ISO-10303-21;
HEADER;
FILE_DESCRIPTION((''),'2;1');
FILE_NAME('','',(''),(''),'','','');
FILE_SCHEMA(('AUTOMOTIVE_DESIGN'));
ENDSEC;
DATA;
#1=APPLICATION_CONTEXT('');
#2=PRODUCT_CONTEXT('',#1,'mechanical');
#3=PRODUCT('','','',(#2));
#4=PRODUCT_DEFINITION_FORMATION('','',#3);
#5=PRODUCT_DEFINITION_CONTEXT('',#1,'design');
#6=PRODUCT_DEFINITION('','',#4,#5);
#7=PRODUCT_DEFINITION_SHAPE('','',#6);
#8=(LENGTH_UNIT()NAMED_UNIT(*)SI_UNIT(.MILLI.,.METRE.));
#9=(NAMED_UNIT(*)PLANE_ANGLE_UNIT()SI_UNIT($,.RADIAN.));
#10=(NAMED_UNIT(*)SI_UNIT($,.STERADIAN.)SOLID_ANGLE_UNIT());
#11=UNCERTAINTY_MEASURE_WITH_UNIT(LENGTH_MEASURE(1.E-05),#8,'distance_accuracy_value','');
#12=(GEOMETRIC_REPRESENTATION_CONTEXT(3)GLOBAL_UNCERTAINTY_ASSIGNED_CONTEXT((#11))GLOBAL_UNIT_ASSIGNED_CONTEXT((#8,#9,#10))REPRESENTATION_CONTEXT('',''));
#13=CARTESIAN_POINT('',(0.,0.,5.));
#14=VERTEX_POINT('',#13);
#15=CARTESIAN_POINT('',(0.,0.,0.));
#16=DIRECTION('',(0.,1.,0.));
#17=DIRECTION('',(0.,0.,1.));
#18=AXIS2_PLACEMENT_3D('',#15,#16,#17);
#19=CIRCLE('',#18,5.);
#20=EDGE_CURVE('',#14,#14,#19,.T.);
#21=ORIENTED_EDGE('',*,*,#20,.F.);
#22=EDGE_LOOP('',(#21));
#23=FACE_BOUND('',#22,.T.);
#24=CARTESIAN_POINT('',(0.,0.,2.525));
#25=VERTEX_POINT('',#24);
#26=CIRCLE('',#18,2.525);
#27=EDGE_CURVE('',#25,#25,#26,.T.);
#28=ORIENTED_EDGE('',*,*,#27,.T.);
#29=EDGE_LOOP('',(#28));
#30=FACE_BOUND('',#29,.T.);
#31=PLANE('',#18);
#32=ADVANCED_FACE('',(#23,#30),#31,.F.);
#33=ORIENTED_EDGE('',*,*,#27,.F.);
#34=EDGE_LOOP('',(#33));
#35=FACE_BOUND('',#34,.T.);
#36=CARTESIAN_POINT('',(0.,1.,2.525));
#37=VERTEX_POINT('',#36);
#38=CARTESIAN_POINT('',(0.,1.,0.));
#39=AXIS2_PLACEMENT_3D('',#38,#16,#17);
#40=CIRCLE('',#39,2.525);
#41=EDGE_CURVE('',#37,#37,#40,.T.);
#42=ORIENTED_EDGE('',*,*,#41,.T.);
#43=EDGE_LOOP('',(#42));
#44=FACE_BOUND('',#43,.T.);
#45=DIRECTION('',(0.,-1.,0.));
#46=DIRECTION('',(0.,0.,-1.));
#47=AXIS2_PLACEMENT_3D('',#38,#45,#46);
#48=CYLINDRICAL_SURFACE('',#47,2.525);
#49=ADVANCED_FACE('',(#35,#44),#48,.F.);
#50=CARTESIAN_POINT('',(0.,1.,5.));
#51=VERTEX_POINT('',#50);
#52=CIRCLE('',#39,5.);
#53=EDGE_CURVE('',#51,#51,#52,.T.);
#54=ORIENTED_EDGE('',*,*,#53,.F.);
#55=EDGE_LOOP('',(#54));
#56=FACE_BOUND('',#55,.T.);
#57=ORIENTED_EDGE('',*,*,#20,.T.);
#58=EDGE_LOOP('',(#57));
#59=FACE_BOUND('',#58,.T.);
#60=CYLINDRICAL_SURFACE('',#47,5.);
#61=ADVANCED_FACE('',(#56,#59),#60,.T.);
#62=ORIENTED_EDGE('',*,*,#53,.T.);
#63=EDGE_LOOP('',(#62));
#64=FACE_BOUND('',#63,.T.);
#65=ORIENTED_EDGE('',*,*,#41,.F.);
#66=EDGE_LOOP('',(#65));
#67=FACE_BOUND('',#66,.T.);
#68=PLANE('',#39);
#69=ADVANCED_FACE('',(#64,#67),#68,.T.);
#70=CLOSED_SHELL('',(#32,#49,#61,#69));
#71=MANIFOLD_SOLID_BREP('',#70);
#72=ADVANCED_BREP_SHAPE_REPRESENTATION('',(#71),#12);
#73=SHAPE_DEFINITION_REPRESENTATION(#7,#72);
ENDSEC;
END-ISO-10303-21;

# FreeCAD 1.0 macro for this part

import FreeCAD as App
import Part
import Sketcher

V = App.Vector

doc = App.newDocument("Part")
params = doc.addObject("Spreadsheet::Sheet", "Params")
for row, (alias, value) in enumerate([
    ("sketch1_diameter", "10 mm"),
    ("sketch1_diameter2", "5.05 mm"),
    ("pad1_length", "1 mm"),
], start=1):
    params.set(f"A{row}", alias)
    params.set(f"B{row}", "=" + value)
    params.setAlias(f"B{row}", alias)

body = doc.addObject("PartDesign::Body", "Body")

# Sketch on XZ plane
sketch1 = body.newObject("Sketcher::SketchObject", "Sketch")
sketch1.AttachmentSupport = (doc.getObject("XZ_Plane"), [""])
sketch1.MapMode = "FlatFace"
sketch1.addGeometry(Part.Circle(V(0, 0, 0), V(0, 0, 1), 5), False)
sketch1.addGeometry(Part.Circle(V(0, 0, 0), V(0, 0, 1), 2.525), False)
sketch1.addConstraint(Sketcher.Constraint("Coincident", 0, 3, -1, 1))
sketch1.addConstraint(Sketcher.Constraint("Coincident", 1, 3, -1, 1))
sketch1.addConstraint(Sketcher.Constraint("Diameter", 0, 10.0))
sketch1.addConstraint(Sketcher.Constraint("Diameter", 1, 5.05))
sketch1.setExpression("Constraints[2]", "Params.sketch1_diameter")
sketch1.setExpression("Constraints[3]", "Params.sketch1_diameter2")
pad1 = body.newObject("PartDesign::Pad", "Pad")
pad1.Profile = sketch1
pad1.setExpression("Length", "Params.pad1_length")
pad1.Reversed = True

doc.recompute()
